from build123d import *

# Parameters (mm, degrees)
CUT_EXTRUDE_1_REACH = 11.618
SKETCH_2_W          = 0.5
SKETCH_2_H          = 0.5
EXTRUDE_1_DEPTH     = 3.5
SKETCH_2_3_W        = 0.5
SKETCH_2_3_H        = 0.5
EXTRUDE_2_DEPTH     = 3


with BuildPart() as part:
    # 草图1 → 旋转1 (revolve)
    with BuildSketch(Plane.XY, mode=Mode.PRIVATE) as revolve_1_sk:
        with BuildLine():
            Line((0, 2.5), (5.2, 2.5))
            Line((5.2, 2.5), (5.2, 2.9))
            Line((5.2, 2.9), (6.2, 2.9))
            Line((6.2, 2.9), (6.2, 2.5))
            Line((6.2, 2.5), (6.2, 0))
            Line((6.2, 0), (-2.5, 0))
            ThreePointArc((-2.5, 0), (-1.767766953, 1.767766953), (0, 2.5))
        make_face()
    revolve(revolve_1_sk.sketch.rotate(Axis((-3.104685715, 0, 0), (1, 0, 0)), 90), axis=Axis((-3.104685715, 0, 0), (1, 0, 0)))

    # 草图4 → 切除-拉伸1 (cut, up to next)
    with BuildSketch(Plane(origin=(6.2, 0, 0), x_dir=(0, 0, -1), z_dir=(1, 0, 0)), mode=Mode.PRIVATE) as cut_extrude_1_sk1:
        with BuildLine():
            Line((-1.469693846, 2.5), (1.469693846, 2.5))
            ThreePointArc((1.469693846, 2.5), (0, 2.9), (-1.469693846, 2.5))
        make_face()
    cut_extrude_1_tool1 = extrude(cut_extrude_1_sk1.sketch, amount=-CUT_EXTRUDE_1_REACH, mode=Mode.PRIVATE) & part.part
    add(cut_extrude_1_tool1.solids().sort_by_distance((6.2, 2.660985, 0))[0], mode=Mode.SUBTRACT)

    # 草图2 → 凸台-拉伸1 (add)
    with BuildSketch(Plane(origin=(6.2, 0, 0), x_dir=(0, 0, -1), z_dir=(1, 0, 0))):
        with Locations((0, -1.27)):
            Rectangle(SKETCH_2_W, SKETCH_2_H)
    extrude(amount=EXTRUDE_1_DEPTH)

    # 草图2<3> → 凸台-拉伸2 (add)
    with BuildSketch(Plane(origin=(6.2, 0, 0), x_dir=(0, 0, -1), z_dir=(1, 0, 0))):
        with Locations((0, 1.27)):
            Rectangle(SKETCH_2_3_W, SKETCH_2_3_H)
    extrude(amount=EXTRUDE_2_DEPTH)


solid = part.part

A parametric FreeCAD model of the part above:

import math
import FreeCAD as App
import Part
import Sketcher

V = App.Vector


def add_polygon(sketch, points):
    """Adds a closed chain of lines whose ends are joined by coincident constraints."""
    first, n = sketch.GeometryCount, len(points)
    for a, b in zip(points, points[1:] + points[:1]):
        sketch.addGeometry(Part.LineSegment(App.Vector(*a, 0), App.Vector(*b, 0)), False)
    for i in range(n):
        sketch.addConstraint(Sketcher.Constraint("Coincident", first + i, 2, first + (i + 1) % n, 1))

doc = App.newDocument("Part")
params = doc.addObject("Spreadsheet::Sheet", "Params")
for row, (alias, value) in enumerate([
    ("sketch1_radius", "2.5 mm"),
    ("sketch1_width", "1 mm"),
    ("sketch1_width2", "5.2 mm"),
    ("sketch1_height", "2.9 mm"),
    ("revolution_angle", "360 deg"),
    ("sketch2_radius", "2.9 mm"),
    ("sketch3_width", "0.5 mm"),
    ("pad1_length", "3.5 mm"),
    ("sketch4_width", "0.5 mm"),
    ("pad2_length", "3 mm"),
], start=1):
    params.set(f"A{row}", alias)
    params.set(f"B{row}", "=" + value)
    params.setAlias(f"B{row}", alias)

body = doc.addObject("PartDesign::Body", "Body")

sketch1 = doc.addObject("Sketcher::SketchObject", "Sketch")
body.addObject(sketch1)
sketch1.AttachmentSupport = (doc.XY_Plane, [""])
sketch1.MapMode = "FlatFace"
sketch1.addGeometry(Part.LineSegment(V(5.2, 2.5, 0), V(0, 2.5, 0)), False)
sketch1.addGeometry(Part.ArcOfCircle(Part.Circle(V(0, 0, 0), V(0, 0, 1), 2.5), math.radians(90), math.radians(180)), False)
sketch1.addGeometry(Part.LineSegment(V(-2.5, 0, 0), V(6.2, 0, 0)), False)
sketch1.addGeometry(Part.LineSegment(V(6.2, 0, 0), V(6.2, 2.9, 0)), False)
sketch1.addGeometry(Part.LineSegment(V(6.2, 2.9, 0), V(5.2, 2.9, 0)), False)
sketch1.addGeometry(Part.LineSegment(V(5.2, 2.9, 0), V(5.2, 2.5, 0)), False)
sketch1.addConstraint(Sketcher.Constraint("Tangent", 0, 2, 1, 1))
sketch1.addConstraint(Sketcher.Constraint("Coincident", 1, 2, 2, 1))
sketch1.addConstraint(Sketcher.Constraint("Coincident", 2, 2, 3, 1))
sketch1.addConstraint(Sketcher.Constraint("Coincident", 3, 2, 4, 1))
sketch1.addConstraint(Sketcher.Constraint("Coincident", 4, 2, 5, 1))
sketch1.addConstraint(Sketcher.Constraint("Coincident", 5, 2, 0, 1))
sketch1.addConstraint(Sketcher.Constraint("Horizontal", 0))
sketch1.addConstraint(Sketcher.Constraint("Horizontal", 2))
sketch1.addConstraint(Sketcher.Constraint("Vertical", 3))
sketch1.addConstraint(Sketcher.Constraint("Horizontal", 4))
sketch1.addConstraint(Sketcher.Constraint("Vertical", 5))
sketch1.addConstraint(Sketcher.Constraint("Coincident", 1, 3, -1, 1))
sketch1.addConstraint(Sketcher.Constraint("PointOnObject", 1, 2, -1))
sketch1.addConstraint(Sketcher.Constraint("Radius", 1, 2.5))
sketch1.addConstraint(Sketcher.Constraint("DistanceX", 4, 2, 4, 1, 1.0))
sketch1.addConstraint(Sketcher.Constraint("DistanceX", 0, 2, 0, 1, 5.2))
sketch1.addConstraint(Sketcher.Constraint("DistanceY", 3, 1, 3, 2, 2.9))
sketch1.setExpression("Constraints[13]", "Params.sketch1_radius")
sketch1.setExpression("Constraints[14]", "Params.sketch1_width")
sketch1.setExpression("Constraints[15]", "Params.sketch1_width2")
sketch1.setExpression("Constraints[16]", "Params.sketch1_height")
revolution = doc.addObject("PartDesign::Revolution", "Revolution")
body.addObject(revolution)
revolution.Profile = sketch1
revolution.ReferenceAxis = (sketch1, ["H_Axis"])
revolution.setExpression("Angle", "Params.revolution_angle")

sketch2 = doc.addObject("Sketcher::SketchObject", "Sketch001")
body.addObject(sketch2)
sketch2.AttachmentSupport = (doc.YZ_Plane, [""])
sketch2.MapMode = "FlatFace"
sketch2.AttachmentOffset = App.Placement(V(0, 0, 6.2), App.Rotation())
sketch2.addGeometry(Part.LineSegment(V(2.5, 1.469694, 0), V(2.5, -1.469694, 0)), False)
sketch2.addGeometry(Part.ArcOfCircle(Part.Circle(V(0, 0, 0), V(0, 0, 1), 2.9), math.radians(-30.450314), math.radians(30.450314)), False)
sketch2.addConstraint(Sketcher.Constraint("Coincident", 0, 1, 1, 2))
sketch2.addConstraint(Sketcher.Constraint("Coincident", 1, 1, 0, 2))
sketch2.addConstraint(Sketcher.Constraint("Vertical", 0))
sketch2.addConstraint(Sketcher.Constraint("Coincident", 1, 3, -1, 1))
sketch2.addConstraint(Sketcher.Constraint("Radius", 1, 2.9))
sketch2.addConstraint(Sketcher.Constraint("DistanceX", -1, 1, 0, 1, 2.5))
sketch2.setExpression("Constraints[4]", "Params.sketch2_radius")
pocket1 = doc.addObject("PartDesign::Pocket", "Pocket")
body.addObject(pocket1)
pocket1.Profile = sketch2
pocket1.Type = "UpToFirst"

sketch3 = doc.addObject("Sketcher::SketchObject", "Sketch002")
body.addObject(sketch3)
sketch3.AttachmentSupport = (doc.YZ_Plane, [""])
sketch3.MapMode = "FlatFace"
sketch3.AttachmentOffset = App.Placement(V(0, 0, 6.2), App.Rotation())
add_polygon(sketch3, [(-1.02, 0.25), (-1.52, 0.25), (-1.52, -0.25), (-1.02, -0.25)])
sketch3.addConstraint(Sketcher.Constraint("Horizontal", 0))
sketch3.addConstraint(Sketcher.Constraint("Vertical", 1))
sketch3.addConstraint(Sketcher.Constraint("Horizontal", 2))
sketch3.addConstraint(Sketcher.Constraint("Vertical", 3))
sketch3.addConstraint(Sketcher.Constraint("Equal", 2, 1))
sketch3.addConstraint(Sketcher.Constraint("DistanceX", 0, 2, 0, 1, 0.5))
sketch3.addConstraint(Sketcher.Constraint("DistanceX", 0, 2, -1, 1, 1.52))
sketch3.addConstraint(Sketcher.Constraint("DistanceY", -1, 1, 0, 2, 0.25))
sketch3.setExpression("Constraints[9]", "Params.sketch3_width")
pad1 = doc.addObject("PartDesign::Pad", "Pad")
body.addObject(pad1)
pad1.Profile = sketch3
pad1.setExpression("Length", "Params.pad1_length")

sketch4 = doc.addObject("Sketcher::SketchObject", "Sketch003")
body.addObject(sketch4)
sketch4.AttachmentSupport = (doc.YZ_Plane, [""])
sketch4.MapMode = "FlatFace"
sketch4.AttachmentOffset = App.Placement(V(0, 0, 6.2), App.Rotation())
add_polygon(sketch4, [(1.52, 0.25), (1.02, 0.25), (1.02, -0.25), (1.52, -0.25)])
sketch4.addConstraint(Sketcher.Constraint("Horizontal", 0))
sketch4.addConstraint(Sketcher.Constraint("Vertical", 1))
sketch4.addConstraint(Sketcher.Constraint("Horizontal", 2))
sketch4.addConstraint(Sketcher.Constraint("Vertical", 3))
sketch4.addConstraint(Sketcher.Constraint("Equal", 2, 1))
sketch4.addConstraint(Sketcher.Constraint("DistanceX", 0, 2, 0, 1, 0.5))
sketch4.addConstraint(Sketcher.Constraint("DistanceX", -1, 1, 0, 2, 1.02))
sketch4.addConstraint(Sketcher.Constraint("DistanceY", -1, 1, 0, 2, 0.25))
sketch4.setExpression("Constraints[9]", "Params.sketch4_width")
pad2 = doc.addObject("PartDesign::Pad", "Pad001")
body.addObject(pad2)
pad2.Profile = sketch4
pad2.setExpression("Length", "Params.pad2_length")

doc.recompute()
